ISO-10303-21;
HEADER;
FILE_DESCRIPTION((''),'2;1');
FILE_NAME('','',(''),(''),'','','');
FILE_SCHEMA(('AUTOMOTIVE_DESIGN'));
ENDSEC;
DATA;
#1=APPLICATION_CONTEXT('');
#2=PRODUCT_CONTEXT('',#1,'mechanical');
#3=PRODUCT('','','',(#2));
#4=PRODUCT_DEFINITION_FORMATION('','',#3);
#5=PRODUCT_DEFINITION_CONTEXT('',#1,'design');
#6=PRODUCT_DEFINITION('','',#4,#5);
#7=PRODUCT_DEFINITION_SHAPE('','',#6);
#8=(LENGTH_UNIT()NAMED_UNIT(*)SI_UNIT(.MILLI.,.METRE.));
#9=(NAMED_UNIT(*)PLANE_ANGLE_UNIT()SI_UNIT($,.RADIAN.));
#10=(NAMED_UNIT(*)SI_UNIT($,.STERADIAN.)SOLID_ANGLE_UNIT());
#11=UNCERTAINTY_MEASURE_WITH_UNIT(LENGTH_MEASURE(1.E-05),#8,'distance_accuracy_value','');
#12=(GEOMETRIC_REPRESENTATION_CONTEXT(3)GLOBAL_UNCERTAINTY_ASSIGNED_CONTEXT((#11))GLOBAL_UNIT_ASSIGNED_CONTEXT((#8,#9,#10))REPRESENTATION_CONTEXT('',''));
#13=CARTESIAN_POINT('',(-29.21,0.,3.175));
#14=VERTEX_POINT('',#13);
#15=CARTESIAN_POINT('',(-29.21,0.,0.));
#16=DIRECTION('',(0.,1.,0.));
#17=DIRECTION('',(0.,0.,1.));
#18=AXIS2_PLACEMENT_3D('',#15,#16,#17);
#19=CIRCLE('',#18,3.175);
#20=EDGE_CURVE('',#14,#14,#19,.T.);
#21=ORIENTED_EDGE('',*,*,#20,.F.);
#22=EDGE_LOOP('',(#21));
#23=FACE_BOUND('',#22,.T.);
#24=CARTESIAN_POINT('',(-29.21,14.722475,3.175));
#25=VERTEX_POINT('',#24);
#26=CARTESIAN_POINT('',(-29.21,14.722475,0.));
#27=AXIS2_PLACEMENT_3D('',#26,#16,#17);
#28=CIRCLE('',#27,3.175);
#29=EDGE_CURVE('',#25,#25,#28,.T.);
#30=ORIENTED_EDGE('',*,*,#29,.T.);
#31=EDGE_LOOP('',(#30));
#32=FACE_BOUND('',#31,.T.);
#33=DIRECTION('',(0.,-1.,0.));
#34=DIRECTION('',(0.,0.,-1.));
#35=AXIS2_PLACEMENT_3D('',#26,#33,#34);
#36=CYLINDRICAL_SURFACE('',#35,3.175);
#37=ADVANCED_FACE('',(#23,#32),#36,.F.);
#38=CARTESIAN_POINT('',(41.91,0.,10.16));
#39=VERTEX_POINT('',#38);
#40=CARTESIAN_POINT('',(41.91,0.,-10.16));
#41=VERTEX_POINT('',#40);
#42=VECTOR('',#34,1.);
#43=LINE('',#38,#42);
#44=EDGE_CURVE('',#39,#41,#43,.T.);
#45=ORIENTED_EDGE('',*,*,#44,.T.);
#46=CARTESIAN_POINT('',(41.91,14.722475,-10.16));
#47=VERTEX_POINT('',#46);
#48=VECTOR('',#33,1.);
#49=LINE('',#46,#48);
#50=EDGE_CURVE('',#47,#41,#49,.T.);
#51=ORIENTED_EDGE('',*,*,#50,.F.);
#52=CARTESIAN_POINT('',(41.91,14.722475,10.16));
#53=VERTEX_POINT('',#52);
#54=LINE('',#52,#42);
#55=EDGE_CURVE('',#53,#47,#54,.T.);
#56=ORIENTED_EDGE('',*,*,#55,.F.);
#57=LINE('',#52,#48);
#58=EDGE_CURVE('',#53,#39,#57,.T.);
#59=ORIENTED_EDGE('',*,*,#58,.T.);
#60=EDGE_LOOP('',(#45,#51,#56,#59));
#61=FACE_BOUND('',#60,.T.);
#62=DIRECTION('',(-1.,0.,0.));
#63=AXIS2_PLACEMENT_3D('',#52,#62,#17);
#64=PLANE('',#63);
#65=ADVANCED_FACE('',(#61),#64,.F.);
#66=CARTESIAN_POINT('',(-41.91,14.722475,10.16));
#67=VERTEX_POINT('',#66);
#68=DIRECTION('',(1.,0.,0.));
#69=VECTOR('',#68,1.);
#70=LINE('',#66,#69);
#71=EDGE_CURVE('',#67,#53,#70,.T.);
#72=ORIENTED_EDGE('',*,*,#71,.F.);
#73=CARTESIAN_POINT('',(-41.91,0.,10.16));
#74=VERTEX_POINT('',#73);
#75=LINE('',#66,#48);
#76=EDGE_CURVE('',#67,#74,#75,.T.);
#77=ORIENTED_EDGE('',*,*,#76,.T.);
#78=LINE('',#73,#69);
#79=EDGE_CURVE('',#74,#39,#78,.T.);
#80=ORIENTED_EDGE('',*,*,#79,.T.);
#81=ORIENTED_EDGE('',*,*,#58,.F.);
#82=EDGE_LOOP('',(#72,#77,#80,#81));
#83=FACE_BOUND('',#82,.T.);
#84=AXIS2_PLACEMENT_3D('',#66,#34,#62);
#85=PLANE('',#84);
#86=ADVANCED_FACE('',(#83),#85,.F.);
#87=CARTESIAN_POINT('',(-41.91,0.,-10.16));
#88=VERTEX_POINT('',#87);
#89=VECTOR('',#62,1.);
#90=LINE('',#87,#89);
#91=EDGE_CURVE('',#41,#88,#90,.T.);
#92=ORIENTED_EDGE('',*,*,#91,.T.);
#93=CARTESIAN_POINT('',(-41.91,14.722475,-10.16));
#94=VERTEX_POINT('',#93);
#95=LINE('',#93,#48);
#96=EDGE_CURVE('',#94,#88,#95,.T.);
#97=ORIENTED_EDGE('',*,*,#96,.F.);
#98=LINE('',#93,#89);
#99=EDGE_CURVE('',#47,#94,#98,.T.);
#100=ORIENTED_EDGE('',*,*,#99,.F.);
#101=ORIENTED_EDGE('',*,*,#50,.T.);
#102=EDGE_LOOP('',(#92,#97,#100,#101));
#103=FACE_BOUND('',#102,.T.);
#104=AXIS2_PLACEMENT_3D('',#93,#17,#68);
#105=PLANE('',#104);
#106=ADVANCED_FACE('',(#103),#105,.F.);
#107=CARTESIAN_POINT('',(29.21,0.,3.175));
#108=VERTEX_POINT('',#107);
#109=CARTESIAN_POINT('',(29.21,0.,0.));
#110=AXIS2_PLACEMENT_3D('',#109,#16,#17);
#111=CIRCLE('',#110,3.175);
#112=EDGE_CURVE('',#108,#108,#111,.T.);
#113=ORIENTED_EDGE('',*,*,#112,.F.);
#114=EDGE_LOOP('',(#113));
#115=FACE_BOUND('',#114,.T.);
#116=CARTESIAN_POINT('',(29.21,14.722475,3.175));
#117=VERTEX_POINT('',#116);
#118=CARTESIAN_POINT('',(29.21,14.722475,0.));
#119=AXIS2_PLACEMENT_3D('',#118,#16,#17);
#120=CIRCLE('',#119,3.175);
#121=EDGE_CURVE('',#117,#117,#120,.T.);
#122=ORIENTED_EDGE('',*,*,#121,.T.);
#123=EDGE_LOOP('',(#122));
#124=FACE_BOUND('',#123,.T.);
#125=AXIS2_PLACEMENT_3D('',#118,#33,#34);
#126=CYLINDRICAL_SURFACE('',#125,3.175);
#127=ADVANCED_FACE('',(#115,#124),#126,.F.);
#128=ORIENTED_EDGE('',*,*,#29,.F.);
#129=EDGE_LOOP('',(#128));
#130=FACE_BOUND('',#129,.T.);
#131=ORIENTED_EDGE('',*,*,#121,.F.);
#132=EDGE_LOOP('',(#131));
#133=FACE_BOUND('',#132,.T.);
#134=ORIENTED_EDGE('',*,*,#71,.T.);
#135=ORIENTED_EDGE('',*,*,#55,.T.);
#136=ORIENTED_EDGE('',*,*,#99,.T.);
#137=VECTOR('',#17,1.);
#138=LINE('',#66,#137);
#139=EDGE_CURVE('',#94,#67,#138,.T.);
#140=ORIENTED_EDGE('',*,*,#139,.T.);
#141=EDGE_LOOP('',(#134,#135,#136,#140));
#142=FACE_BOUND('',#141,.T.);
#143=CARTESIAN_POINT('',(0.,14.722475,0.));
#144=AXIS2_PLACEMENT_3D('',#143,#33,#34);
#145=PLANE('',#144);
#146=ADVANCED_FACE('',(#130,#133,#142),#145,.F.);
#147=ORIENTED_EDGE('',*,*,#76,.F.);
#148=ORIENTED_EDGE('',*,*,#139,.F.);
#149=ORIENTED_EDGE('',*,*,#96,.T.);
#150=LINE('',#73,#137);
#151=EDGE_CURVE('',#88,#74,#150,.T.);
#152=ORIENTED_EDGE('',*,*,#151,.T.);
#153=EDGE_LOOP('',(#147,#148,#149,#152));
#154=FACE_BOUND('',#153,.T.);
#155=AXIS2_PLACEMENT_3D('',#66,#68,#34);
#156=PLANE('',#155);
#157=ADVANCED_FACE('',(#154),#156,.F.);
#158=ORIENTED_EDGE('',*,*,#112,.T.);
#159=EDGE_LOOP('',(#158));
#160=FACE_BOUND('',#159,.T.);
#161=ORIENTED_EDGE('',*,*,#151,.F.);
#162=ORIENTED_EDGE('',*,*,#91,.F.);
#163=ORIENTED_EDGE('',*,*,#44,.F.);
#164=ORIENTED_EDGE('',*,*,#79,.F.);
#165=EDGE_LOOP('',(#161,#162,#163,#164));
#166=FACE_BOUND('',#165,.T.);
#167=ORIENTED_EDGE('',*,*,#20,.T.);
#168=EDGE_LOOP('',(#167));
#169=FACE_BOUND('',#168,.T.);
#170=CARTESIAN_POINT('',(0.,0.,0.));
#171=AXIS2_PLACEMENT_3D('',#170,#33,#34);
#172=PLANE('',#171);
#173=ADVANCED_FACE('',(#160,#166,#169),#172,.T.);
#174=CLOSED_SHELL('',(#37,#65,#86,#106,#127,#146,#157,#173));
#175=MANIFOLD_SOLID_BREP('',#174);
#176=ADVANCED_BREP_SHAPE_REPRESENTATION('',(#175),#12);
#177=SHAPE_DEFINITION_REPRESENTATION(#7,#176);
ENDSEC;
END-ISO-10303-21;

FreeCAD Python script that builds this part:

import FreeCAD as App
import Part
import Sketcher
from FreeCAD import Vector
Q = App.Units.Quantity


def add_polygon(sketch, points):
    """Adds a closed chain of lines whose ends are joined by coincident constraints."""
    first, n = sketch.GeometryCount, len(points)
    for a, b in zip(points, points[1:] + points[:1]):
        sketch.addGeometry(Part.LineSegment(App.Vector(*a, 0), App.Vector(*b, 0)), False)
    for i in range(n):
        sketch.addConstraint(Sketcher.Constraint("Coincident", first + i, 2, first + (i + 1) % n, 1))

doc = App.newDocument("Part")
body = doc.addObject("PartDesign::Body", "Body")

# Sketch on XZ plane
sketch1 = body.newObject("Sketcher::SketchObject", "Sketch")
sketch1.AttachmentSupport = (doc.getObject("XZ_Plane"), [""])
sketch1.MapMode = "FlatFace"
add_polygon(sketch1, [(-41.9, -10.2), (-41.9, 10.2), (41.9, 10.2), (41.9, -10.2)])  # lines 0-3
sketch1.addGeometry(Part.Circle(Vector(-29.2, 0, 0), Vector(0, 0, 1), 3.2), False)  # 4
sketch1.addGeometry(Part.Circle(Vector(29.2, 0, 0), Vector(0, 0, 1), 3.2), False)  # 5
sketch1.addConstraint([
    Sketcher.Constraint("Vertical", 0),
    Sketcher.Constraint("Horizontal", 1),
    Sketcher.Constraint("Vertical", 2),
    Sketcher.Constraint("Horizontal", 3),
    Sketcher.Constraint("Equal", 4, 5),
    Sketcher.Constraint("Symmetric", 4, 3, 5, 3, -1, 1),
    Sketcher.Constraint("Symmetric", 0, 2, 2, 2, -1, 1),
    Sketcher.Constraint("PointOnObject", 4, 3, -1),
    Sketcher.Constraint("Diameter", 4, Q("0.25 in")),
    Sketcher.Constraint("DistanceX", 1, 1, 1, 2, Q("3.3 in")),
    Sketcher.Constraint("DistanceY", 0, 1, 0, 2, Q("0.8 in")),
    Sketcher.Constraint("DistanceX", 4, 3, 5, 3, Q("2.3 in")),
])
pad1 = body.newObject("PartDesign::Pad", "Pad")
pad1.Profile = sketch1
pad1.Length = 14.722475
pad1.Reversed = True

doc.recompute()
